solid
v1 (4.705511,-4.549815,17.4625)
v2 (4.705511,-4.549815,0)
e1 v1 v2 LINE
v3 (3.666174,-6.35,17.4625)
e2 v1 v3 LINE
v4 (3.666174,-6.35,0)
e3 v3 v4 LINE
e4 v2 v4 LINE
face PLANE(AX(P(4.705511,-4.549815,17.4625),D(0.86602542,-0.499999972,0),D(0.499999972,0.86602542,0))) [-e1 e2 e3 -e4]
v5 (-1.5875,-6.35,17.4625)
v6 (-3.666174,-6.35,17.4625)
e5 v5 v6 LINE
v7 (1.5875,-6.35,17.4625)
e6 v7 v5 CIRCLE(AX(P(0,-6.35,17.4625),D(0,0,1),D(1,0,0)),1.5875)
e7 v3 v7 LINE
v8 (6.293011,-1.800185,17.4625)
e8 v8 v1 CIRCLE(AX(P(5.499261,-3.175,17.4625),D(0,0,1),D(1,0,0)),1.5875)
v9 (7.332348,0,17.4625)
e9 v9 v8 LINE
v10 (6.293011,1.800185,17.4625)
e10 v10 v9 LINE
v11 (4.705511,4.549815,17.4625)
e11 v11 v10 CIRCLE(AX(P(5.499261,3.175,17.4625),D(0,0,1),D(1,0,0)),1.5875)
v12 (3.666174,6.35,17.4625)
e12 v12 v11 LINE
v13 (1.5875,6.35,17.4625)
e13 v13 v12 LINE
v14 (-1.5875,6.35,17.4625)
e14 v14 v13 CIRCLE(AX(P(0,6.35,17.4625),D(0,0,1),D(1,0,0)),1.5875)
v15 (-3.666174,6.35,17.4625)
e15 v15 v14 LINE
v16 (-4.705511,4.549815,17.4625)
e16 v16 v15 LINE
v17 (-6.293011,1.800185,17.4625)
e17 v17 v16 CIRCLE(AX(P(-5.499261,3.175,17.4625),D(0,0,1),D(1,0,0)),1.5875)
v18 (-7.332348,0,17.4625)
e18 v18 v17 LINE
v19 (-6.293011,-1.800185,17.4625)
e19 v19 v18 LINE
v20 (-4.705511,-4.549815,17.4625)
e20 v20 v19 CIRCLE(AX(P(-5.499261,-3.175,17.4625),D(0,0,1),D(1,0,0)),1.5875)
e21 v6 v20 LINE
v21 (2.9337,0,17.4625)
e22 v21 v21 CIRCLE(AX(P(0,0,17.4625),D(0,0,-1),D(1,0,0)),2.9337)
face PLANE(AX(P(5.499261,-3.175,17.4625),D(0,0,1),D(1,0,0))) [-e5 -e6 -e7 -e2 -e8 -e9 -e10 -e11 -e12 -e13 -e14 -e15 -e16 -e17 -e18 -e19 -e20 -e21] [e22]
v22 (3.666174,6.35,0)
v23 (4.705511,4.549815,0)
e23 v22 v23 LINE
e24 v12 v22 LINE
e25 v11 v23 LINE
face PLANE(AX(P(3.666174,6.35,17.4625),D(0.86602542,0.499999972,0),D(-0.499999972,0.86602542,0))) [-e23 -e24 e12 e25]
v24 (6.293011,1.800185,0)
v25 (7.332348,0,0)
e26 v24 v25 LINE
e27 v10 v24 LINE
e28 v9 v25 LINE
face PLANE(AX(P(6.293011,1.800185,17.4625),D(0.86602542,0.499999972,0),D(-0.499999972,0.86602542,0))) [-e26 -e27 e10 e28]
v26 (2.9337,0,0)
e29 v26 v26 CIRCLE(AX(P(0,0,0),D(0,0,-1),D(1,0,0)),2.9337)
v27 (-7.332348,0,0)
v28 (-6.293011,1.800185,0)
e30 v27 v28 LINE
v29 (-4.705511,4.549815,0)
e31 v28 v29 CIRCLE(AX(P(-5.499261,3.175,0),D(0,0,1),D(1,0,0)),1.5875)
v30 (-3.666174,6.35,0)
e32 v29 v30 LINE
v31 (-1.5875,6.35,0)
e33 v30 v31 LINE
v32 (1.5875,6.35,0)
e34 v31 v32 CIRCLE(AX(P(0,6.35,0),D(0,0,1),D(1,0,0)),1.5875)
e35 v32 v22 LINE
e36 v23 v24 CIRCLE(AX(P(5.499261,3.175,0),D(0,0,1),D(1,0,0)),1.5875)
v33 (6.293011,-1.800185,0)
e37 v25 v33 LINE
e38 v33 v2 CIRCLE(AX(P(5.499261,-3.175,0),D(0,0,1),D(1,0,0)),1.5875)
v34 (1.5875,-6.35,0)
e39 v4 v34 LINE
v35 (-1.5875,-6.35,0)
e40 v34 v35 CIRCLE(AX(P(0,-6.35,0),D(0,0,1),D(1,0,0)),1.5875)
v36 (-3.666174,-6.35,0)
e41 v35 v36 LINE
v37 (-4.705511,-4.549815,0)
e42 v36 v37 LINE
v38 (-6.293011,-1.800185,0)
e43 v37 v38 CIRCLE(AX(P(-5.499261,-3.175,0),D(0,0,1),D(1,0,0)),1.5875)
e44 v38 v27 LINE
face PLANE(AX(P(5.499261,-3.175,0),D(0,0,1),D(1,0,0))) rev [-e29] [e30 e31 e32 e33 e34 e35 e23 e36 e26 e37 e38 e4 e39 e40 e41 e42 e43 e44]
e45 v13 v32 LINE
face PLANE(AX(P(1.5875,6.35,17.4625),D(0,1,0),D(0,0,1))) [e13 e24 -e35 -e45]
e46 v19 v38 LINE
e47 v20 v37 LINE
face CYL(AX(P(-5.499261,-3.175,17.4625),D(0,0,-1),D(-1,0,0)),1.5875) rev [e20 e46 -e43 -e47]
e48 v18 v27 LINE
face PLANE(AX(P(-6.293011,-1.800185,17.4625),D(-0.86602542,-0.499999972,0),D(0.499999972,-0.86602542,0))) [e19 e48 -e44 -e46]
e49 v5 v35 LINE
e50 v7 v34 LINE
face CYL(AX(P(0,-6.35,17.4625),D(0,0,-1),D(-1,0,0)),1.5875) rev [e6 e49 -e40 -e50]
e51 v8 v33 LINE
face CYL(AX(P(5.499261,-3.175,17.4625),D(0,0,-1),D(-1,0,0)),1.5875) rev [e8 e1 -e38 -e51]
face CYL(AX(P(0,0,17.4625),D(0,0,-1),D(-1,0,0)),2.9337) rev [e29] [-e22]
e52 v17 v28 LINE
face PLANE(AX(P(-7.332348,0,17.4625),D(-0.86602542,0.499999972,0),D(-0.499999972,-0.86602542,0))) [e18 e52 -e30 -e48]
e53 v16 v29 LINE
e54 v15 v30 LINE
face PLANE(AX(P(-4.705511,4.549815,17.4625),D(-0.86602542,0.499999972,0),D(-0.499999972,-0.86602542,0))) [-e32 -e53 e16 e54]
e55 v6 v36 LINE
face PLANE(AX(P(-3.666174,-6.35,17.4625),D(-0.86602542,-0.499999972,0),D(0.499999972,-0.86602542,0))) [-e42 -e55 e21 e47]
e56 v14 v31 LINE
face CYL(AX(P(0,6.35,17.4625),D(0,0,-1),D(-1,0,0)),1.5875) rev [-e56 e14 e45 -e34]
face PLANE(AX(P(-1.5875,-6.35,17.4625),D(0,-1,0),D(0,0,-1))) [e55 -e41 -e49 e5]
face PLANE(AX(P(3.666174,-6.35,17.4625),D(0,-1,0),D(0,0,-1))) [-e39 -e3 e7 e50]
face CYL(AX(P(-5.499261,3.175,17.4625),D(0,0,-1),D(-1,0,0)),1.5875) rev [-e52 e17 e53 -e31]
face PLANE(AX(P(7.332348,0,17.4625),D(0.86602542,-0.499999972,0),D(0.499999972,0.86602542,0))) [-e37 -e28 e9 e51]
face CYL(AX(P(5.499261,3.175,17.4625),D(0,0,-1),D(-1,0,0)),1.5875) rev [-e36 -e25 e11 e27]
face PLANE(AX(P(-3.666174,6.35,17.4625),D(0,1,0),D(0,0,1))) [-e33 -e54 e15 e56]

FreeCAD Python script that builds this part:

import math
import FreeCAD as App
import Part
import Sketcher
Q = App.Units.Quantity

doc = App.newDocument("Part")
body = doc.addObject("PartDesign::Body", "Body")

# Sketch on XY plane
sketch1 = body.newObject("Sketcher::SketchObject", "Sketch")
sketch1.AttachmentSupport = (doc.getObject("XY_Plane"), [""])
sketch1.MapMode = "FlatFace"
sketch1.addGeometry(Part.LineSegment(App.Vector(4.7, -4.5, 0), App.Vector(3.7, -6.4, 0)), False)
sketch1.addGeometry(Part.LineSegment(App.Vector(3.7, -6.4, 0), App.Vector(1.6, -6.4, 0)), False)
sketch1.addGeometry(Part.ArcOfCircle(Part.Circle(App.Vector(0, -6.4, 0), App.Vector(0, 0, 1), 1.6), math.radians(0), math.radians(180)), False)
sketch1.addGeometry(Part.LineSegment(App.Vector(-1.6, -6.4, 0), App.Vector(-3.7, -6.4, 0)), False)
sketch1.addGeometry(Part.LineSegment(App.Vector(-3.7, -6.4, 0), App.Vector(-4.7, -4.5, 0)), False)
sketch1.addGeometry(Part.ArcOfCircle(Part.Circle(App.Vector(-5.5, -3.2, 0), App.Vector(0, 0, 1), 1.6), math.radians(-60), math.radians(120)), False)
sketch1.addGeometry(Part.LineSegment(App.Vector(-6.3, -1.8, 0), App.Vector(-7.3, 0, 0)), False)
sketch1.addGeometry(Part.LineSegment(App.Vector(-7.3, 0, 0), App.Vector(-6.3, 1.8, 0)), False)
sketch1.addGeometry(Part.ArcOfCircle(Part.Circle(App.Vector(-5.5, 3.2, 0), App.Vector(0, 0, 1), 1.6), math.radians(-120), math.radians(60)), False)
sketch1.addGeometry(Part.LineSegment(App.Vector(-4.7, 4.5, 0), App.Vector(-3.7, 6.4, 0)), False)
sketch1.addGeometry(Part.LineSegment(App.Vector(-3.7, 6.4, 0), App.Vector(-1.6, 6.4, 0)), False)
sketch1.addGeometry(Part.ArcOfCircle(Part.Circle(App.Vector(0, 6.4, 0), App.Vector(0, 0, 1), 1.6), math.radians(180), math.radians(360)), False)
sketch1.addGeometry(Part.LineSegment(App.Vector(1.6, 6.4, 0), App.Vector(3.7, 6.4, 0)), False)
sketch1.addGeometry(Part.LineSegment(App.Vector(3.7, 6.4, 0), App.Vector(4.7, 4.5, 0)), False)
sketch1.addGeometry(Part.ArcOfCircle(Part.Circle(App.Vector(5.5, 3.2, 0), App.Vector(0, 0, 1), 1.6), math.radians(120), math.radians(300)), False)
sketch1.addGeometry(Part.LineSegment(App.Vector(6.3, 1.8, 0), App.Vector(7.3, 0, 0)), False)
sketch1.addGeometry(Part.LineSegment(App.Vector(7.3, 0, 0), App.Vector(6.3, -1.8, 0)), False)
sketch1.addGeometry(Part.ArcOfCircle(Part.Circle(App.Vector(5.5, -3.2, 0), App.Vector(0, 0, 1), 1.6), math.radians(60), math.radians(240)), False)
sketch1.addGeometry(Part.Circle(App.Vector(0, 0, 0), App.Vector(0, 0, 1), 2.9), False)
sketch1.addConstraint(Sketcher.Constraint("Coincident", 0, 2, 1, 1))
sketch1.addConstraint(Sketcher.Constraint("Coincident", 1, 2, 2, 1))
sketch1.addConstraint(Sketcher.Constraint("Coincident", 2, 2, 3, 1))
sketch1.addConstraint(Sketcher.Constraint("Coincident", 3, 2, 4, 1))
sketch1.addConstraint(Sketcher.Constraint("Coincident", 4, 2, 5, 1))
sketch1.addConstraint(Sketcher.Constraint("Coincident", 5, 2, 6, 1))
sketch1.addConstraint(Sketcher.Constraint("Coincident", 6, 2, 7, 1))
sketch1.addConstraint(Sketcher.Constraint("Coincident", 7, 2, 8, 1))
sketch1.addConstraint(Sketcher.Constraint("Coincident", 8, 2, 9, 1))
sketch1.addConstraint(Sketcher.Constraint("Coincident", 9, 2, 10, 1))
sketch1.addConstraint(Sketcher.Constraint("Coincident", 10, 2, 11, 1))
sketch1.addConstraint(Sketcher.Constraint("Coincident", 11, 2, 12, 1))
sketch1.addConstraint(Sketcher.Constraint("Coincident", 12, 2, 13, 1))
sketch1.addConstraint(Sketcher.Constraint("Coincident", 13, 2, 14, 1))
sketch1.addConstraint(Sketcher.Constraint("Coincident", 14, 2, 15, 1))
sketch1.addConstraint(Sketcher.Constraint("Coincident", 15, 2, 16, 1))
sketch1.addConstraint(Sketcher.Constraint("Coincident", 16, 2, 17, 1))
sketch1.addConstraint(Sketcher.Constraint("Coincident", 17, 2, 0, 1))
sketch1.addConstraint(Sketcher.Constraint("Horizontal", 1))
sketch1.addConstraint(Sketcher.Constraint("Horizontal", 3))
sketch1.addConstraint(Sketcher.Constraint("Horizontal", 10))
sketch1.addConstraint(Sketcher.Constraint("Horizontal", 12))
sketch1.addConstraint(Sketcher.Constraint("Coincident", 18, 3, -1, 1))
sketch1.addConstraint(Sketcher.Constraint("Equal", 2, 5))
sketch1.addConstraint(Sketcher.Constraint("Equal", 5, 8))
sketch1.addConstraint(Sketcher.Constraint("Equal", 8, 11))
sketch1.addConstraint(Sketcher.Constraint("Equal", 11, 14))
sketch1.addConstraint(Sketcher.Constraint("Equal", 14, 17))
sketch1.addConstraint(Sketcher.Constraint("Symmetric", 2, 3, 11, 3, -1, 1))
sketch1.addConstraint(Sketcher.Constraint("Symmetric", 5, 3, 14, 3, -1, 1))
sketch1.addConstraint(Sketcher.Constraint("Symmetric", 8, 3, 17, 3, -1, 1))
sketch1.addConstraint(Sketcher.Constraint("Symmetric", 0, 2, 9, 2, -1, 1))
sketch1.addConstraint(Sketcher.Constraint("Symmetric", 3, 2, 12, 2, -1, 1))
sketch1.addConstraint(Sketcher.Constraint("Symmetric", 6, 2, 15, 2, -1, 1))
sketch1.addConstraint(Sketcher.Constraint("Symmetric", 8, 3, 14, 3, -2))
sketch1.addConstraint(Sketcher.Constraint("Symmetric", 1, 2, 2, 2, -2))
sketch1.addConstraint(Sketcher.Constraint("PointOnObject", 6, 2, -1))
sketch1.addConstraint(Sketcher.Constraint("Parallel", 4, 6))
sketch1.addConstraint(Sketcher.Constraint("Parallel", 0, 7))
sketch1.addConstraint(Sketcher.Constraint("Parallel", 7, 9))
sketch1.addConstraint(Sketcher.Constraint("Parallel", 6, 13))
sketch1.addConstraint(Sketcher.Constraint("Parallel", 13, 15))
sketch1.addConstraint(Sketcher.Constraint("Parallel", 9, 16))
sketch1.addConstraint(Sketcher.Constraint("Horizontal", 2, 3, 0, 2))
sketch1.addConstraint(Sketcher.Constraint("Horizontal", 8, 2, 13, 2))
sketch1.addConstraint(Sketcher.Constraint("Horizontal", 7, 2, 14, 2))
sketch1.addConstraint(Sketcher.Constraint("Equal", 4, 6))
sketch1.addConstraint(Sketcher.Constraint("Diameter", 18, Q("0.231 in")))
sketch1.addConstraint(Sketcher.Constraint("Angle", 0, Q("-119.999998 deg")))
sketch1.addConstraint(Sketcher.Constraint("Radius", 2, Q("0.0625 in")))
sketch1.addConstraint(Sketcher.Constraint("DistanceY", 2, 3, 11, 3, Q("0.5 in")))
sketch1.addConstraint(Sketcher.Constraint("DistanceY", 5, 3, 8, 3, Q("0.25 in")))
sketch1.addConstraint(Sketcher.Constraint("DistanceX", 5, 3, 4, 2, Q("0.03125 in")))
sketch1.addConstraint(Sketcher.Constraint("DistanceX", 1, 2, 1, 1, 2.078674))
pad1 = body.newObject("PartDesign::Pad", "Pad")
pad1.Profile = sketch1
pad1.Length = Q("0.6875 in")

doc.recompute()
